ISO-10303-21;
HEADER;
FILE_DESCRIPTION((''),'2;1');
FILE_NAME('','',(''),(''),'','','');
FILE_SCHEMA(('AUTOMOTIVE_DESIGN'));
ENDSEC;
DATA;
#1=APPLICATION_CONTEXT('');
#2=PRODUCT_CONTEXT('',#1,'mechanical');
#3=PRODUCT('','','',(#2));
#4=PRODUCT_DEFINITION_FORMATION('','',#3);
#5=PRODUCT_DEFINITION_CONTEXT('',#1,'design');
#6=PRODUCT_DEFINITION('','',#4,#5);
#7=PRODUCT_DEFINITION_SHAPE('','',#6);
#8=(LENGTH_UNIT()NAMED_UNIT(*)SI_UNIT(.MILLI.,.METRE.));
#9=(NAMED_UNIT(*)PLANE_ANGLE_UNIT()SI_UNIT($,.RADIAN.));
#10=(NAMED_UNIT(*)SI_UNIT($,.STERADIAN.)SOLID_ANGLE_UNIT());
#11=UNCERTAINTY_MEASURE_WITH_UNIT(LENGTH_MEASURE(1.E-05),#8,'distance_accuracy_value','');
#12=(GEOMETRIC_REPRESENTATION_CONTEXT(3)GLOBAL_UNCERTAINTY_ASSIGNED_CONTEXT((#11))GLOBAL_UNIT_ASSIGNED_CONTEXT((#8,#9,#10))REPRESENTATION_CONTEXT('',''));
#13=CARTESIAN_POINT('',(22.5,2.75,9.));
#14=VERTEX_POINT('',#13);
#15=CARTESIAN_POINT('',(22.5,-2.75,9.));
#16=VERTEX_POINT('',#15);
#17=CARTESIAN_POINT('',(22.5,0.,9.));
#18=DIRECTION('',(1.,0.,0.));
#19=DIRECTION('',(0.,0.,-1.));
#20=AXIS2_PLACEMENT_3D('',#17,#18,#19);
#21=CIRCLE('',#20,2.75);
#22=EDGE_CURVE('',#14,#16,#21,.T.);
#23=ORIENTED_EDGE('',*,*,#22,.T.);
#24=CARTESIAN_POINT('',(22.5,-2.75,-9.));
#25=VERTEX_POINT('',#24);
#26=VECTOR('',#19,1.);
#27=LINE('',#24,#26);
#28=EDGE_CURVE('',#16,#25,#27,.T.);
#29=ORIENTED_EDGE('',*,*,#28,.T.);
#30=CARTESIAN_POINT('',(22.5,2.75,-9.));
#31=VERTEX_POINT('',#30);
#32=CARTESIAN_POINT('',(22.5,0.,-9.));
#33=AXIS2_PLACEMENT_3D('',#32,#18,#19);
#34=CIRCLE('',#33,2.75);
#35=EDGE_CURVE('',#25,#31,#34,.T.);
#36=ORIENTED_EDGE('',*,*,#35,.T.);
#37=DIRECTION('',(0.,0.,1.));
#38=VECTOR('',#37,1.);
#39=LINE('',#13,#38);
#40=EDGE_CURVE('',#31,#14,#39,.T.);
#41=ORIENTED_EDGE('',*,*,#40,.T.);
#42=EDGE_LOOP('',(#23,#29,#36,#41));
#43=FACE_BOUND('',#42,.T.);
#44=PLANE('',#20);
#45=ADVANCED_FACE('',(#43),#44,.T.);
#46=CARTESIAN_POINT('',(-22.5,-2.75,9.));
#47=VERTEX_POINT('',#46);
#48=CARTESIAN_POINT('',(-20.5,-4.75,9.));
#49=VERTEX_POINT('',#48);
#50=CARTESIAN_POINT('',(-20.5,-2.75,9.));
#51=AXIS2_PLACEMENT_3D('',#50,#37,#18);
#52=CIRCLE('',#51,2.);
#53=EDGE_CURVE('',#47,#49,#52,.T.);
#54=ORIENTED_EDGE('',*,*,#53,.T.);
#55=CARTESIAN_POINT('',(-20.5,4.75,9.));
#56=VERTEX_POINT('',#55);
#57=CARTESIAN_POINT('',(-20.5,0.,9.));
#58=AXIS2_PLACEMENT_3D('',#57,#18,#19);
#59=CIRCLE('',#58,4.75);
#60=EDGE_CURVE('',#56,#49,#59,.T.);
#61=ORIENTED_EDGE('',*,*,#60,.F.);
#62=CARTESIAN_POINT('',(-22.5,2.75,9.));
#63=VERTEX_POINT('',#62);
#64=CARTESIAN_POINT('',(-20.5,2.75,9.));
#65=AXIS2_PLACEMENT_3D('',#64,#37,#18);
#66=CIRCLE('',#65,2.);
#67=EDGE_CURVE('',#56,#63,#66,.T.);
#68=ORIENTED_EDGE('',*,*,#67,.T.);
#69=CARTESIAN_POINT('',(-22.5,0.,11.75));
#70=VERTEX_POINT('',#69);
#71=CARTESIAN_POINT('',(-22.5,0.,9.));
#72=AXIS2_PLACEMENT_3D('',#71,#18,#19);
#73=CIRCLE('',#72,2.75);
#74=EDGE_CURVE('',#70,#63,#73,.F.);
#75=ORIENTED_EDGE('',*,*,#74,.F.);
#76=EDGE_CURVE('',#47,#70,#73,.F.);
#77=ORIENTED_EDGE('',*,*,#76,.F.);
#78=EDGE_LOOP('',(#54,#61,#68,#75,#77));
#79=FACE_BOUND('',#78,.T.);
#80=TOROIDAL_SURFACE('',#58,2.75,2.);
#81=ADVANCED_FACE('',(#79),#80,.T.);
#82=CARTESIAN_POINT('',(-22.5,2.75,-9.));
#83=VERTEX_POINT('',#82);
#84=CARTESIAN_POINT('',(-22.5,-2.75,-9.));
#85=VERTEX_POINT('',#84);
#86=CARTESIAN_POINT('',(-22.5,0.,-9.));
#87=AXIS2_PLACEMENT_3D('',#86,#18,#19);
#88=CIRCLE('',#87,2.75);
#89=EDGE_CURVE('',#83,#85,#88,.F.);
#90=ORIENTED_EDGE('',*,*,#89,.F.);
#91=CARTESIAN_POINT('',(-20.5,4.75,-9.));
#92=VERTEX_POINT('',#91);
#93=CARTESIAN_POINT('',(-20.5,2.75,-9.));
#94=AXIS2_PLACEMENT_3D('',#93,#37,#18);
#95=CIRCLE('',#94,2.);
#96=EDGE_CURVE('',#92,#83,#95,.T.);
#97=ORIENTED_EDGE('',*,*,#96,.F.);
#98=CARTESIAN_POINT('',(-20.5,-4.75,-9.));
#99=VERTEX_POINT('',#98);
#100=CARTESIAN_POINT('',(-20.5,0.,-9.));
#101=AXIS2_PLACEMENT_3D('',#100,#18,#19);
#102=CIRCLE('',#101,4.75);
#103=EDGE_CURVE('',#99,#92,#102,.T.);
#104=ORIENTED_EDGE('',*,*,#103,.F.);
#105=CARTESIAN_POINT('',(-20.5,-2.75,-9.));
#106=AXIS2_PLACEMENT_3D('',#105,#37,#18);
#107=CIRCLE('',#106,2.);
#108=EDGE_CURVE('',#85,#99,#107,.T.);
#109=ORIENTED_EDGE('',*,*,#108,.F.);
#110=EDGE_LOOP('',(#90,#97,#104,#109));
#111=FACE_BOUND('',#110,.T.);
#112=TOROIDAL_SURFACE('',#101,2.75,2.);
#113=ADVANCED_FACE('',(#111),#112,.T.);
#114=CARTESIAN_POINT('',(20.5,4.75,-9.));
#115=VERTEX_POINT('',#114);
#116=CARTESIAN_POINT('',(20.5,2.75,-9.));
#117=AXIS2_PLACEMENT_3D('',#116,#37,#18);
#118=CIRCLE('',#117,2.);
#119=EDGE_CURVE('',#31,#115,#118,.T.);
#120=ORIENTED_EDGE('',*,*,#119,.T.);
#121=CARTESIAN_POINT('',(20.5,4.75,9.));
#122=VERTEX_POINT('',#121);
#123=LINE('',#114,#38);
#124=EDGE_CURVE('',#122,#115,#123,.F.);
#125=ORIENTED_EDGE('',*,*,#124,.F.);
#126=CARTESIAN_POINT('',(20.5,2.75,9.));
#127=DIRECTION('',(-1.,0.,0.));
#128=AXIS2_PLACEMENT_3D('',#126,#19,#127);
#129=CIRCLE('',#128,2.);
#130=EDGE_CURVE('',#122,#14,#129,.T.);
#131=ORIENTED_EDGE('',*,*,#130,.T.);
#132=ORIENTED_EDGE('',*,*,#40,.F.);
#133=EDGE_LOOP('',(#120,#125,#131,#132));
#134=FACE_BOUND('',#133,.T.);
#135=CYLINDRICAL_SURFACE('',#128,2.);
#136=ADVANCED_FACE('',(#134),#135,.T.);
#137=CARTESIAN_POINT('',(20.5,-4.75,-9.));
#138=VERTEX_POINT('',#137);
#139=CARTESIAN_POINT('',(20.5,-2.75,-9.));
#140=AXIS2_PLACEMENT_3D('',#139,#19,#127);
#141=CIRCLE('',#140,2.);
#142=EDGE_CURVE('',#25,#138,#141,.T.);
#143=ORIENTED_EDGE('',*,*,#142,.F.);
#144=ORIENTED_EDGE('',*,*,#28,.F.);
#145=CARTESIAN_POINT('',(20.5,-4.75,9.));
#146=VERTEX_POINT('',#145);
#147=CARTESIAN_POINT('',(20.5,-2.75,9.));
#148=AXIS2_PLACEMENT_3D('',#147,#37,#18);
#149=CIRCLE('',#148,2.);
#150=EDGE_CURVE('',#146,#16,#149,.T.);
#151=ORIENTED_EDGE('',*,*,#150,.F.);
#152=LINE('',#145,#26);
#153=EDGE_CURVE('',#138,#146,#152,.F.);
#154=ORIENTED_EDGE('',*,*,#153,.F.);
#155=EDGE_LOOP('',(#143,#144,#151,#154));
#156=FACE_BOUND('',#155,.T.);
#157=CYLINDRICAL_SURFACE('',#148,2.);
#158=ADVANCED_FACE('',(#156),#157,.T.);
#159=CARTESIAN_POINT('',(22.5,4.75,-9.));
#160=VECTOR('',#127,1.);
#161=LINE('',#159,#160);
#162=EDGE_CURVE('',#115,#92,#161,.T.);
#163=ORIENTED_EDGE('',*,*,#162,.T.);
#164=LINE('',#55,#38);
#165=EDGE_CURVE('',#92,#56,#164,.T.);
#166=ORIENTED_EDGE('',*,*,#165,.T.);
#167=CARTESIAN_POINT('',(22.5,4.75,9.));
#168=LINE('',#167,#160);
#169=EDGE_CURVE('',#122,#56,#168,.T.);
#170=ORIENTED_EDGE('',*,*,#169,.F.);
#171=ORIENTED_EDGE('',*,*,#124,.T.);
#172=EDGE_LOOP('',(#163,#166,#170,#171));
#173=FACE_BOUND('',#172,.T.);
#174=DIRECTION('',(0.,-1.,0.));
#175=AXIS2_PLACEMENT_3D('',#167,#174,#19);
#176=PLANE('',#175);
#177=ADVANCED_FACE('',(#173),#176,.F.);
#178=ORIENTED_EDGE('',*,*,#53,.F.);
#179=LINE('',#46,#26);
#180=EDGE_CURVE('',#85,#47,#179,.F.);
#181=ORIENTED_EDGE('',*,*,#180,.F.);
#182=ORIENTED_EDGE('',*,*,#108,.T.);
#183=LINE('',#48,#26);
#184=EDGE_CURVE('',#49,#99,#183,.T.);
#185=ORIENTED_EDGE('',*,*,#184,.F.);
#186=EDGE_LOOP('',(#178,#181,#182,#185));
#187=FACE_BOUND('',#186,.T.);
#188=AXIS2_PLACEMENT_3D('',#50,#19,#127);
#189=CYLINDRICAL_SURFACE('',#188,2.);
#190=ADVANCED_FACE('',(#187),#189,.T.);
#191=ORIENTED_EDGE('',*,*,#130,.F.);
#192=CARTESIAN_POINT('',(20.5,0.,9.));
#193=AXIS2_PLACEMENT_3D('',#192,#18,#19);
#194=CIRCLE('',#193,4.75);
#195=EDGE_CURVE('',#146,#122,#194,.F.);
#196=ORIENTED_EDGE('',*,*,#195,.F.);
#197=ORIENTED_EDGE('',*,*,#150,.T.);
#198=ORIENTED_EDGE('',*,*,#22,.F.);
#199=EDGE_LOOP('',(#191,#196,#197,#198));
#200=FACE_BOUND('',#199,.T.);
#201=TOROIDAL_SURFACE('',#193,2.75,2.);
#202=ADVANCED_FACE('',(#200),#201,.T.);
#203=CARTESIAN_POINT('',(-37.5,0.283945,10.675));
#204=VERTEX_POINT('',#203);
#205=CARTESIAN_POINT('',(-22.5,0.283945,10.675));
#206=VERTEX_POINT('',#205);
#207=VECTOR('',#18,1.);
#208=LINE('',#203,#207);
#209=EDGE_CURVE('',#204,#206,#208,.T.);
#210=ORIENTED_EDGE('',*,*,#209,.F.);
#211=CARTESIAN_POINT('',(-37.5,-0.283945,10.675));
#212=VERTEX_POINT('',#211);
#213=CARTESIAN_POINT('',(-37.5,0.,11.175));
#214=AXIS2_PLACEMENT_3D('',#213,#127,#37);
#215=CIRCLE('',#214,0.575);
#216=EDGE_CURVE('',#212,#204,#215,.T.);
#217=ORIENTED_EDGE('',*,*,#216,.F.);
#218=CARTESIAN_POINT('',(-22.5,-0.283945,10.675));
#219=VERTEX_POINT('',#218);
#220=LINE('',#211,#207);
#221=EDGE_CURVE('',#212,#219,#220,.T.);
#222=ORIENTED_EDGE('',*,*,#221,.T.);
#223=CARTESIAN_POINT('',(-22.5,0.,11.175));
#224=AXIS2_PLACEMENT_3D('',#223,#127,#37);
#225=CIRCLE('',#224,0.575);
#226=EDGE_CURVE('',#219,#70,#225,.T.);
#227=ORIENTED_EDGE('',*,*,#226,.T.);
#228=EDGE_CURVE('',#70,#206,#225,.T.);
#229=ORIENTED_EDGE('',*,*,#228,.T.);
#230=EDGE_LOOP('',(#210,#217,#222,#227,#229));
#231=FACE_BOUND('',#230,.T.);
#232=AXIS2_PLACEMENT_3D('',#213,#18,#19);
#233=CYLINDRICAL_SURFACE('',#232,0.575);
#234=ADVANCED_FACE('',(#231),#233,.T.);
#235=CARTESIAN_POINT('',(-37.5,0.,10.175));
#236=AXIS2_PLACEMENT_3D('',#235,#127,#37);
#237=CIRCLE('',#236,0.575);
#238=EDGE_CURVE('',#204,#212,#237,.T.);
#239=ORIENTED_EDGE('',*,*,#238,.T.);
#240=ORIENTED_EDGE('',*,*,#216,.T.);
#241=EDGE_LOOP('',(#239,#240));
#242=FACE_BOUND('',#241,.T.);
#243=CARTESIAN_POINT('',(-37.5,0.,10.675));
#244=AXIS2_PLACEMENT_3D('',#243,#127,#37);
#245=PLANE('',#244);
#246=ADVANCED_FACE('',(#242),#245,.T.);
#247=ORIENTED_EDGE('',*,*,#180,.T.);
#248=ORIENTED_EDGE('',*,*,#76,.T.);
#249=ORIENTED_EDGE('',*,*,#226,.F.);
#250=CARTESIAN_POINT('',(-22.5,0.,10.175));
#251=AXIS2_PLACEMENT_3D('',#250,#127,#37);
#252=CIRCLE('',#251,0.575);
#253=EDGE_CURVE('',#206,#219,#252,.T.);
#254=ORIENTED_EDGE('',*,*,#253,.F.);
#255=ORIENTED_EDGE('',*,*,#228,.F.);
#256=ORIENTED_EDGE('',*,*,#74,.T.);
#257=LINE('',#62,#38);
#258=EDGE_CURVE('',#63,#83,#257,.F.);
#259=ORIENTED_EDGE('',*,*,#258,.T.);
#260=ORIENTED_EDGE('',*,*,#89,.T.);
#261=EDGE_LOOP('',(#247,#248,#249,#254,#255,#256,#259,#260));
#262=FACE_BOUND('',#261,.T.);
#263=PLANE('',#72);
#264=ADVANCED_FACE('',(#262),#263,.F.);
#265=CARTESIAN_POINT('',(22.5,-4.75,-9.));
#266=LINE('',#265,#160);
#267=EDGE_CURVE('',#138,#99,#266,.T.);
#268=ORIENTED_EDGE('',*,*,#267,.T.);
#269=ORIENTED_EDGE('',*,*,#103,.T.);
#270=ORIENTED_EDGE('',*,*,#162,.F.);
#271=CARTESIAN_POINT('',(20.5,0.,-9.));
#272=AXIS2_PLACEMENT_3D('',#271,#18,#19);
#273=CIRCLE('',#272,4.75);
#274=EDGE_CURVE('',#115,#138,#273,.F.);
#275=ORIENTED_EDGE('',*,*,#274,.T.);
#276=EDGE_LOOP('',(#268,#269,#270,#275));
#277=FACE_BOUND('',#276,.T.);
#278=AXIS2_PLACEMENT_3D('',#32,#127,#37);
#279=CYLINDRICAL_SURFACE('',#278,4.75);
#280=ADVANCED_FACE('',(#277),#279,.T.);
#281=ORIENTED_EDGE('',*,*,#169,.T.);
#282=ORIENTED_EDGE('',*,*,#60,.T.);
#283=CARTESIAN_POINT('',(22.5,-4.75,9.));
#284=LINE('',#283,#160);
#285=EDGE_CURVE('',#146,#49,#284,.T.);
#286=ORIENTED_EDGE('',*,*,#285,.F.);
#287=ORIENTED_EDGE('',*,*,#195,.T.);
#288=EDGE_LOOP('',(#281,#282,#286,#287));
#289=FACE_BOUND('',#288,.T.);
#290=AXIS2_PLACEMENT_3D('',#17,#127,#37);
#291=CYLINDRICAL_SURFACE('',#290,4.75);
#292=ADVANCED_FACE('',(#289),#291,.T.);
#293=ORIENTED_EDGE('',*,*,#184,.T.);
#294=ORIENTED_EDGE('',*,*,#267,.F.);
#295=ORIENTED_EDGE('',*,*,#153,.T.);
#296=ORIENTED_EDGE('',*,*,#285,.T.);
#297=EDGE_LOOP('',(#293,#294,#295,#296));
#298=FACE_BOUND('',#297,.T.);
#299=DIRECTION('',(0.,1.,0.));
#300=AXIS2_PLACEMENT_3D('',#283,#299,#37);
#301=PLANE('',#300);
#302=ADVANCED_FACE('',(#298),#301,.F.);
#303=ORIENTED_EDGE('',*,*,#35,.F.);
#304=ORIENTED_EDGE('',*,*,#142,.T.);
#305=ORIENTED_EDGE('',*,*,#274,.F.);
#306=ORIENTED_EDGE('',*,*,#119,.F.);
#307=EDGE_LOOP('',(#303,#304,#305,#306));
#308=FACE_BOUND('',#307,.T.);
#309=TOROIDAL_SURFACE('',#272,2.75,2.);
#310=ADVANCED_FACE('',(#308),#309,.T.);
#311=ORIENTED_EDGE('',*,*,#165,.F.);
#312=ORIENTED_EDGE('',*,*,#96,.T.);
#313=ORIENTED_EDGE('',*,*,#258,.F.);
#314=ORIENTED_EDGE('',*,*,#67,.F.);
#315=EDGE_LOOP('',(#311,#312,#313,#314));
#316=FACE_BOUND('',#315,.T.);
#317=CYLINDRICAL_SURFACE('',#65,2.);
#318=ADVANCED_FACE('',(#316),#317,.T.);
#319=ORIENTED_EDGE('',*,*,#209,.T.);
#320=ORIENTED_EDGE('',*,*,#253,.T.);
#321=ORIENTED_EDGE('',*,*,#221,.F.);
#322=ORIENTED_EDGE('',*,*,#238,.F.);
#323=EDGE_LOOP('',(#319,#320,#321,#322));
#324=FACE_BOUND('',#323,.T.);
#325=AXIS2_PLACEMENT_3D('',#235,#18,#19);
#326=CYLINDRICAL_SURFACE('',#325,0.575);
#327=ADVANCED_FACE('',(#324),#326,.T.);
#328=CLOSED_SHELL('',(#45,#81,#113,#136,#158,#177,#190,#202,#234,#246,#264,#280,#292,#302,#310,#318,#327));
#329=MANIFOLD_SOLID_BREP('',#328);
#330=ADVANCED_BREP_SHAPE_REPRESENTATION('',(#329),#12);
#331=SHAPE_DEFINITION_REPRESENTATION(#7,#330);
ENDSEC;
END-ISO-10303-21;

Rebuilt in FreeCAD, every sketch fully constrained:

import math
import FreeCAD as App
import Part
import Sketcher
Q = App.Units.Quantity


def edges_at(feature, points):
    """Names of the edges that pass closest to the given points."""
    edges = feature.Shape.Edges
    near = lambda p: min(range(len(edges)), key=lambda i: edges[i].distToShape(Part.Vertex(*p))[0])
    return sorted({f"Edge{near(p) + 1}" for p in points})

doc = App.newDocument("Part")
body = doc.addObject("PartDesign::Body", "Body")

# Sketch on YZ plane
sketch1 = body.newObject("Sketcher::SketchObject", "Sketch")
sketch1.AttachmentSupport = (doc.getObject("YZ_Plane"), [""])
sketch1.MapMode = "FlatFace"
sketch1.addGeometry(Part.LineSegment(App.Vector(4.8, -9, 0), App.Vector(4.8, 9, 0)), False)
sketch1.addGeometry(Part.ArcOfCircle(Part.Circle(App.Vector(0, 9, 0), App.Vector(0, 0, 1), 4.8), math.radians(0), math.radians(180)), False)
sketch1.addGeometry(Part.LineSegment(App.Vector(-4.8, 9, 0), App.Vector(-4.8, -9, 0)), False)
sketch1.addGeometry(Part.ArcOfCircle(Part.Circle(App.Vector(0, -9, 0), App.Vector(0, 0, 1), 4.8), math.radians(180), math.radians(360)), False)
sketch1.addConstraint(Sketcher.Constraint("Tangent", 0, 2, 1, 1))
sketch1.addConstraint(Sketcher.Constraint("Tangent", 1, 2, 2, 1))
sketch1.addConstraint(Sketcher.Constraint("Tangent", 2, 2, 3, 1))
sketch1.addConstraint(Sketcher.Constraint("Tangent", 3, 2, 0, 1))
sketch1.addConstraint(Sketcher.Constraint("Vertical", 0))
sketch1.addConstraint(Sketcher.Constraint("Vertical", 2))
sketch1.addConstraint(Sketcher.Constraint("Symmetric", 1, 3, 3, 3, -1, 1))
sketch1.addConstraint(Sketcher.Constraint("DistanceY", 0, 1, 0, 2, Q("18 mm")))
sketch1.addConstraint(Sketcher.Constraint("Radius", 1, Q("4.75 mm")))
pad1 = body.newObject("PartDesign::Pad", "Pad")
pad1.Profile = sketch1
pad1.Length = 45
pad1.Midplane = True
doc.recompute()

fillet = body.newObject("PartDesign::Fillet", "Fillet")
fillet.Base = (pad1, edges_at(pad1, [
    (22.5, 0, -13.75),
    (22.5, 4.75, 0),
    (22.5, 0, 13.75),
    (-22.5, 4.75, 0),
    (-22.5, 0, -13.75),
    (-22.5, -4.75, 0),
    (-22.5, 0, 13.75),
    (22.5, -4.75, 0),
]))
fillet.Radius = 2

# Sketch on YZ plane
sketch2 = body.newObject("Sketcher::SketchObject", "Sketch001")
sketch2.AttachmentSupport = (doc.getObject("YZ_Plane"), [""])
sketch2.MapMode = "FlatFace"
sketch2.AttachmentOffset = App.Placement(App.Vector(0, 0, -22.5), App.Rotation())
sketch2.addGeometry(Part.ArcOfCircle(Part.Circle(App.Vector(0, 10.2, 0), App.Vector(0, 0, 1), 0.6), math.radians(120), math.radians(420)), False)
sketch2.addGeometry(Part.ArcOfCircle(Part.Circle(App.Vector(0, 11.2, 0), App.Vector(0, 0, 1), 0.6), math.radians(-60), math.radians(240)), False)
sketch2.addConstraint(Sketcher.Constraint("Coincident", 0, 1, 1, 2))
sketch2.addConstraint(Sketcher.Constraint("Coincident", 1, 1, 0, 2))
sketch2.addConstraint(Sketcher.Constraint("Equal", 0, 1))
sketch2.addConstraint(Sketcher.Constraint("Symmetric", 0, 1, 1, 1, -2))
sketch2.addConstraint(Sketcher.Constraint("Radius", 0, Q("0.575 mm")))
sketch2.addConstraint(Sketcher.Constraint("DistanceY", 0, 3, 1, 3, Q("1 mm")))
sketch2.addConstraint(Sketcher.Constraint("DistanceY", -1, 1, 0, 3, Q("10.175 mm")))
pad2 = body.newObject("PartDesign::Pad", "Pad001")
pad2.Profile = sketch2
pad2.Length = 15
pad2.Reversed = True

doc.recompute()
